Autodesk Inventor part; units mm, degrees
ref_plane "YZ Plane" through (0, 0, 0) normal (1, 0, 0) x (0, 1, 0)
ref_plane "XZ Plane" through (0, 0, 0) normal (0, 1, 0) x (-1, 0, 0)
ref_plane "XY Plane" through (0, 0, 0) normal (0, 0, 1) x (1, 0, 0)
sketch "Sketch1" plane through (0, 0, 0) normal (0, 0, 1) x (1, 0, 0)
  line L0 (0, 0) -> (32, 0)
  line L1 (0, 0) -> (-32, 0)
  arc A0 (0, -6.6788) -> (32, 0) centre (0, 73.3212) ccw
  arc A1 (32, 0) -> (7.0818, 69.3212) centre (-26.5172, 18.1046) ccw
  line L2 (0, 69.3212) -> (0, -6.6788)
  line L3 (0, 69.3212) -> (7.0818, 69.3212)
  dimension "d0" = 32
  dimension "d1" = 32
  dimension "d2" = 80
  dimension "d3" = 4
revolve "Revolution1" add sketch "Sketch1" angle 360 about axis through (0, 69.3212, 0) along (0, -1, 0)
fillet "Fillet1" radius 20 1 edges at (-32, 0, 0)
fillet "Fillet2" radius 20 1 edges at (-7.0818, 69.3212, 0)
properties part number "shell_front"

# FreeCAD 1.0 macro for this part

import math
import FreeCAD as App
import Part
import Sketcher
Q = App.Units.Quantity


def edges_at(feature, points):
    """Names of the edges that pass closest to the given points."""
    edges = feature.Shape.Edges
    near = lambda p: min(range(len(edges)), key=lambda i: edges[i].distToShape(Part.Vertex(*p))[0])
    return sorted({f"Edge{near(p) + 1}" for p in points})

doc = App.newDocument("Part")
body = doc.addObject("PartDesign::Body", "Body")

# Sketch on XY plane
sketch1 = body.newObject("Sketcher::SketchObject", "Sketch")
sketch1.AttachmentSupport = (doc.getObject("XY_Plane"), [""])
sketch1.MapMode = "FlatFace"
sketch1.addGeometry([
    Part.LineSegment(App.Vector(0, 69, 0), App.Vector(0, -7, 0)),
    Part.ArcOfCircle(Part.Circle(App.Vector(0, 73, 0), App.Vector(0, 0, 1), 80), math.radians(-90), math.radians(-66)),
    Part.ArcOfCircle(Part.Circle(App.Vector(-27, 18, 0), App.Vector(0, 0, 1), 61), math.radians(-17), math.radians(57)),
    Part.LineSegment(App.Vector(7, 69, 0), App.Vector(0, 69, 0)),
], False)
sketch1.addConstraint([
    Sketcher.Constraint("Coincident", 0, 2, 1, 1),
    Sketcher.Constraint("Coincident", 1, 2, 2, 1),
    Sketcher.Constraint("Coincident", 2, 2, 3, 1),
    Sketcher.Constraint("Coincident", 3, 2, 0, 1),
    Sketcher.Constraint("Vertical", 0),
    Sketcher.Constraint("Horizontal", 3),
    Sketcher.Constraint("PointOnObject", 1, 3, -2),
    Sketcher.Constraint("PointOnObject", 0, 2, -2),
    Sketcher.Constraint("PointOnObject", 1, 2, -1),
    Sketcher.Constraint("Radius", 1, Q("80 mm")),
    Sketcher.Constraint("DistanceX", -1, 1, 1, 2, Q("32 mm")),
    Sketcher.Constraint("DistanceY", 2, 2, 1, 3, Q("4 mm")),
    Sketcher.Constraint("Radius", 2, Q("61.254 mm")),
    Sketcher.Constraint("DistanceX", 3, 2, 3, 1, Q("7.0818 mm")),
])
revolution = body.newObject("PartDesign::Revolution", "Revolution")
revolution.Profile = sketch1
revolution.ReferenceAxis = (sketch1, ["V_Axis"])
revolution.Angle = 360
doc.recompute()

fillet = body.newObject("PartDesign::Fillet", "Fillet")
fillet.Base = (revolution, edges_at(revolution, [(-32, 0, 0)]))
fillet.Radius = 20
doc.recompute()

fillet2 = body.newObject("PartDesign::Fillet", "Fillet001")
fillet2.Base = (fillet, edges_at(fillet, [(-7.082, 69.321, 0)]))
fillet2.Radius = 20

doc.recompute()
